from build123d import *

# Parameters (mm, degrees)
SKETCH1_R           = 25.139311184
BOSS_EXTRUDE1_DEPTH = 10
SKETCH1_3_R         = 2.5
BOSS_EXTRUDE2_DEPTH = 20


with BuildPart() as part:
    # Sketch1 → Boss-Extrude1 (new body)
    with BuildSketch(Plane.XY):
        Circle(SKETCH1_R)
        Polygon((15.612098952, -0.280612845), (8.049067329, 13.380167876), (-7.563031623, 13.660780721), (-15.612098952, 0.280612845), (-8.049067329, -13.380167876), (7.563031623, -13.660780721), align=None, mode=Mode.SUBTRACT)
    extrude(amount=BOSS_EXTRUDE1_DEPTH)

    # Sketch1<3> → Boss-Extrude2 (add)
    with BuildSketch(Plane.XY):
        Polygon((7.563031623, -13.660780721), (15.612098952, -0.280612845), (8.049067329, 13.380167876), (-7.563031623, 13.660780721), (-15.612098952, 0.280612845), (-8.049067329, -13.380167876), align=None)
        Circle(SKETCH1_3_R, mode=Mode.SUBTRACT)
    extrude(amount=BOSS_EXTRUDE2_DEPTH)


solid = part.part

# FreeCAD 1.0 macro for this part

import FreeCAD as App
import Part
import Sketcher

V = App.Vector
Q = App.Units.Quantity

doc = App.newDocument("Part")
body = doc.addObject("PartDesign::Body", "Body")

# Sketch on XY plane
sketch1 = body.newObject("Sketcher::SketchObject", "Sketch")
sketch1.AttachmentSupport = (doc.getObject("XY_Plane"), [""])
sketch1.MapMode = "FlatFace"
sketch1.addGeometry(Part.Circle(V(0, 0, 0), V(0, 0, 1), 25), False)
sketch1.addGeometry(Part.LineSegment(V(8, 13, 0), V(16, 0, 0)), False)
sketch1.addGeometry(Part.LineSegment(V(16, 0, 0), V(8, -14, 0)), False)
sketch1.addGeometry(Part.LineSegment(V(8, -14, 0), V(-8, -13, 0)), False)
sketch1.addGeometry(Part.LineSegment(V(-8, -13, 0), V(-16, 0, 0)), False)
sketch1.addGeometry(Part.LineSegment(V(-16, 0, 0), V(-8, 14, 0)), False)
sketch1.addGeometry(Part.LineSegment(V(-8, 14, 0), V(8, 13, 0)), False)
sketch1.addConstraint(Sketcher.Constraint("Coincident", 1, 2, 2, 1))
sketch1.addConstraint(Sketcher.Constraint("Coincident", 2, 2, 3, 1))
sketch1.addConstraint(Sketcher.Constraint("Coincident", 3, 2, 4, 1))
sketch1.addConstraint(Sketcher.Constraint("Coincident", 4, 2, 5, 1))
sketch1.addConstraint(Sketcher.Constraint("Coincident", 5, 2, 6, 1))
sketch1.addConstraint(Sketcher.Constraint("Coincident", 6, 2, 1, 1))
sketch1.addConstraint(Sketcher.Constraint("Coincident", 0, 3, -1, 1))
sketch1.addConstraint(Sketcher.Constraint("Symmetric", 1, 2, 4, 2, -1, 1))
sketch1.addConstraint(Sketcher.Constraint("Symmetric", 2, 2, 5, 2, -1, 1))
sketch1.addConstraint(Sketcher.Constraint("Symmetric", 3, 2, 6, 2, -1, 1))
sketch1.addConstraint(Sketcher.Constraint("Equal", 1, 2))
sketch1.addConstraint(Sketcher.Constraint("Equal", 2, 3))
sketch1.addConstraint(Sketcher.Constraint("Diameter", 0, Q("50.278622 mm")))
sketch1.addConstraint(Sketcher.Constraint("DistanceX", -1, 1, 1, 2, Q("15.612099 mm")))
sketch1.addConstraint(Sketcher.Constraint("DistanceX", 3, 2, 2, 2, Q("15.612099 mm")))
sketch1.addConstraint(Sketcher.Constraint("Distance", 1, Q("15.614621 mm")))
sketch1.addConstraint(Sketcher.Constraint("DistanceX", -1, 1, 2, 2, Q("7.563032 mm")))
pad1 = body.newObject("PartDesign::Pad", "Pad")
pad1.Profile = sketch1
pad1.Length = 10

# Sketch on XY plane
sketch2 = body.newObject("Sketcher::SketchObject", "Sketch001")
sketch2.AttachmentSupport = (doc.getObject("XY_Plane"), [""])
sketch2.MapMode = "FlatFace"
sketch2.addGeometry(Part.LineSegment(V(7.6, -13.7, 0), V(15.6, -0.3, 0)), False)
sketch2.addGeometry(Part.LineSegment(V(15.6, -0.3, 0), V(8, 13.4, 0)), False)
sketch2.addGeometry(Part.LineSegment(V(8, 13.4, 0), V(-7.6, 13.7, 0)), False)
sketch2.addGeometry(Part.LineSegment(V(-7.6, 13.7, 0), V(-15.6, 0.3, 0)), False)
sketch2.addGeometry(Part.LineSegment(V(-15.6, 0.3, 0), V(-8, -13.4, 0)), False)
sketch2.addGeometry(Part.LineSegment(V(-8, -13.4, 0), V(7.6, -13.7, 0)), False)
sketch2.addGeometry(Part.Circle(V(0, 0, 0), V(0, 0, 1), 2.5), False)
sketch2.addConstraint(Sketcher.Constraint("Coincident", 0, 2, 1, 1))
sketch2.addConstraint(Sketcher.Constraint("Coincident", 1, 2, 2, 1))
sketch2.addConstraint(Sketcher.Constraint("Coincident", 2, 2, 3, 1))
sketch2.addConstraint(Sketcher.Constraint("Coincident", 3, 2, 4, 1))
sketch2.addConstraint(Sketcher.Constraint("Coincident", 4, 2, 5, 1))
sketch2.addConstraint(Sketcher.Constraint("Coincident", 5, 2, 0, 1))
sketch2.addConstraint(Sketcher.Constraint("Coincident", 6, 3, -1, 1))
sketch2.addConstraint(Sketcher.Constraint("Symmetric", 0, 2, 3, 2, -1, 1))
sketch2.addConstraint(Sketcher.Constraint("Symmetric", 1, 2, 4, 2, -1, 1))
sketch2.addConstraint(Sketcher.Constraint("Symmetric", 2, 2, 5, 2, -1, 1))
sketch2.addConstraint(Sketcher.Constraint("Equal", 0, 1))
sketch2.addConstraint(Sketcher.Constraint("Equal", 1, 2))
sketch2.addConstraint(Sketcher.Constraint("Diameter", 6, Q("5 mm")))
sketch2.addConstraint(Sketcher.Constraint("DistanceX", -1, 1, 0, 2, Q("15.612099 mm")))
sketch2.addConstraint(Sketcher.Constraint("DistanceX", 2, 2, 1, 2, Q("15.612099 mm")))
sketch2.addConstraint(Sketcher.Constraint("Distance", 0, Q("15.614621 mm")))
sketch2.addConstraint(Sketcher.Constraint("DistanceX", 2, 2, -1, 1, Q("7.563032 mm")))
pad2 = body.newObject("PartDesign::Pad", "Pad001")
pad2.Profile = sketch2
pad2.Length = 20

doc.recompute()
